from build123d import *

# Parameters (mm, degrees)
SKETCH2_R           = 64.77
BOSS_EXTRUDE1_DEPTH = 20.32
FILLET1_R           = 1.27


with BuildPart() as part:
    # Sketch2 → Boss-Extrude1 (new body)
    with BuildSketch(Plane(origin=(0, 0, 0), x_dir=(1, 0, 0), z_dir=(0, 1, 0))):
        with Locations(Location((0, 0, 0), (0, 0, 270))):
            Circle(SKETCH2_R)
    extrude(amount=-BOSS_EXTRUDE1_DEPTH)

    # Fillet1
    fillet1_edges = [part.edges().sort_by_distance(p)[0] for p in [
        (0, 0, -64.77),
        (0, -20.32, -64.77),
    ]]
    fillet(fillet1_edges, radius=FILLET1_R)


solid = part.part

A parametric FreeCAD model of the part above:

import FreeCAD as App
import Part
import Sketcher
from FreeCAD import Vector
Q = App.Units.Quantity


def edges_at(feature, points):
    """Names of the edges that pass closest to the given points."""
    edges = feature.Shape.Edges
    near = lambda p: min(range(len(edges)), key=lambda i: edges[i].distToShape(Part.Vertex(*p))[0])
    return sorted({f"Edge{near(p) + 1}" for p in points})

doc = App.newDocument("Part")
params = doc.addObject("Spreadsheet::Sheet", "Params")
for row, (alias, value) in enumerate([
    ("sketch1_diameter", "5.1 in"),
    ("pad1_length", "0.8 in"),
    ("fillet_radius", "0.05 in"),
], start=1):
    params.set(f"A{row}", alias)
    params.set(f"B{row}", "=" + value)
    params.setAlias(f"B{row}", alias)

body = doc.addObject("PartDesign::Body", "Body")

# Sketch on XZ plane
sketch1 = body.newObject("Sketcher::SketchObject", "Sketch")
sketch1.AttachmentSupport = (doc.getObject("XZ_Plane"), [""])
sketch1.MapMode = "FlatFace"
sketch1.addGeometry(Part.Circle(Vector(0, 0, 0), Vector(0, 0, 1), 64.77), False)
sketch1.addConstraint([
    Sketcher.Constraint("Coincident", 0, 3, -1, 1),
    Sketcher.Constraint("Diameter", 0, Q("5.1 in")),
])
sketch1.setExpression("Constraints[1]", "Params.sketch1_diameter")
pad1 = body.newObject("PartDesign::Pad", "Pad")
pad1.Profile = sketch1
pad1.setExpression("Length", "Params.pad1_length")
doc.recompute()

fillet = body.newObject("PartDesign::Fillet", "Fillet")
fillet.Base = (pad1, edges_at(pad1, [(0, 0, -64.77), (0, -20.32, -64.77)]))
fillet.setExpression("Radius", "Params.fillet_radius")

doc.recompute()
